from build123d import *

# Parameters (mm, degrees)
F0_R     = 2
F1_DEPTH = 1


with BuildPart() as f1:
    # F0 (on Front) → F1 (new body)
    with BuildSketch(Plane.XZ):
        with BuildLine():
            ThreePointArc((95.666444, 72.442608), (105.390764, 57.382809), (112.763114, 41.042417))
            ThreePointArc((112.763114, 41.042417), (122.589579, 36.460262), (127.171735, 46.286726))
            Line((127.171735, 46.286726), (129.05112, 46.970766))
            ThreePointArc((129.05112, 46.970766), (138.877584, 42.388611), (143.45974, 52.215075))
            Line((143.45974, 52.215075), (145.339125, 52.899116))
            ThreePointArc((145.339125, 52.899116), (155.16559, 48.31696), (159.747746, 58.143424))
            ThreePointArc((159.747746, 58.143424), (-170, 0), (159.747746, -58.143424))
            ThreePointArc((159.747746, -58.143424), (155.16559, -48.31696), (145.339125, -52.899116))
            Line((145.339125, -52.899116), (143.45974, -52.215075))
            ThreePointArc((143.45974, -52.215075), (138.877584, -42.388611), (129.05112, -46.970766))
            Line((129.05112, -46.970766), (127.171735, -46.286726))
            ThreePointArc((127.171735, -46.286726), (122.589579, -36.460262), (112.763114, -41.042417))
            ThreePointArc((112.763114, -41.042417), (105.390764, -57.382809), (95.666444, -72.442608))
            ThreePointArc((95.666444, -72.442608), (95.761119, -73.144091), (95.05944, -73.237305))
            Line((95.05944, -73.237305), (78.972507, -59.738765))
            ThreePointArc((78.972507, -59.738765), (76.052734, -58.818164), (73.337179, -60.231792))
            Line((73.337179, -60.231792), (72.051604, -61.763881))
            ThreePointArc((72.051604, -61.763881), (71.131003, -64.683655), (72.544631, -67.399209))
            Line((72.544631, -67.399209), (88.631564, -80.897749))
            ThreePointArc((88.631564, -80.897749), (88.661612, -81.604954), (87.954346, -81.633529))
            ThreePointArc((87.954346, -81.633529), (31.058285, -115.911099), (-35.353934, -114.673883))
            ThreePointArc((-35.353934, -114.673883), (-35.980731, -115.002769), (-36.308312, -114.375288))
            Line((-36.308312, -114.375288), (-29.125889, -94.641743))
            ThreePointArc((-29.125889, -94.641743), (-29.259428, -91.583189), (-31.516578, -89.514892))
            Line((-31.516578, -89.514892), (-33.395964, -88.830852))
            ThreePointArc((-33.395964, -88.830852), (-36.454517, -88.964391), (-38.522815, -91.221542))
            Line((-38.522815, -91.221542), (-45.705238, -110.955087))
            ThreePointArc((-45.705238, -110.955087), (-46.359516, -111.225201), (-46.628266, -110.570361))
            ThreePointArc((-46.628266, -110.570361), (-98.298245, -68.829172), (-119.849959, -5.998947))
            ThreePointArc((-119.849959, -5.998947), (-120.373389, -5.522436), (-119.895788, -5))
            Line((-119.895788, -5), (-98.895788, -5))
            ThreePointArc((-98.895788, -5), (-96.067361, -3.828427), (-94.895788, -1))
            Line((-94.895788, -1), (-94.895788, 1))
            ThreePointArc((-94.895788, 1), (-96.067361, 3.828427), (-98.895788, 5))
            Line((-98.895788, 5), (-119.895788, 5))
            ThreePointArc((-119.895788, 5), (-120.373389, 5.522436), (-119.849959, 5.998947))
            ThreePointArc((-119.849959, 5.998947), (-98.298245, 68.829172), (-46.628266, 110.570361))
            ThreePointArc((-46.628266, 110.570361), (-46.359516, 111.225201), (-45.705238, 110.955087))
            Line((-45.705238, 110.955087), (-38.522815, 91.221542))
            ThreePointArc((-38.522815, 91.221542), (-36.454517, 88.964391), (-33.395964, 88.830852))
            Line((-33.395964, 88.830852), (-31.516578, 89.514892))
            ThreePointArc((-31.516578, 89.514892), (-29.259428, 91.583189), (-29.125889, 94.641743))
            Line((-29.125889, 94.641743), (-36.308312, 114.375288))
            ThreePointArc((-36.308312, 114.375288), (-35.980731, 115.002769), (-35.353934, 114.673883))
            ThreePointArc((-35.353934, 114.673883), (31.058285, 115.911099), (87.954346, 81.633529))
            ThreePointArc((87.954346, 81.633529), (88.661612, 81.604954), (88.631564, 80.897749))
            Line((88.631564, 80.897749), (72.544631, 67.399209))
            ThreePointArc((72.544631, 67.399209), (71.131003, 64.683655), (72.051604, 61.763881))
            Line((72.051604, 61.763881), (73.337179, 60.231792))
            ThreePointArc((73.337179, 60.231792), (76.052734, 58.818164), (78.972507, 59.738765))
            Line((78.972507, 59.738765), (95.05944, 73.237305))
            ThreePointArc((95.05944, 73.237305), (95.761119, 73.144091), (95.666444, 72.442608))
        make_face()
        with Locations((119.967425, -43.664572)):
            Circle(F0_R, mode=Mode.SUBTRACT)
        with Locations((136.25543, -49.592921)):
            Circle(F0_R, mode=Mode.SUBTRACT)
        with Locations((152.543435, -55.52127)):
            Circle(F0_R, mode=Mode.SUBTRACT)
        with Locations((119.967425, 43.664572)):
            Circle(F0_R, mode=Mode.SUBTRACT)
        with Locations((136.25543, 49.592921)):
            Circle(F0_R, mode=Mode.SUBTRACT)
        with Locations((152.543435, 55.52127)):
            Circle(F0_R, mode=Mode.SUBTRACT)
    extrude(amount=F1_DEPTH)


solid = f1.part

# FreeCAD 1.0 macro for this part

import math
import FreeCAD as App
import Part
import Sketcher
from FreeCAD import Vector
Q = App.Units.Quantity

doc = App.newDocument("Part")
body = doc.addObject("PartDesign::Body", "Body")

# Sketch on XZ plane
sketch1 = doc.addObject("Sketcher::SketchObject", "Sketch")
body.addObject(sketch1)
sketch1.AttachmentSupport = (doc.XZ_Plane, [""])
sketch1.MapMode = "FlatFace"
sketch1.addGeometry([
    Part.ArcOfCircle(Part.Circle(Vector(-0.000004, -0.000001, 0), Vector(0, 0, 1), 120.000004), math.radians(20), math.radians(37.134518)),  # 0
    Part.ArcOfCircle(Part.Circle(Vector(119.967424, 43.664572, 0), Vector(0, 0, 1), 7.666667), math.radians(-159.999994), math.radians(19.999992)),  # 1
    Part.LineSegment(Vector(127.171735, 46.286726, 0), Vector(129.05112, 46.970766, 0)),  # 2
    Part.ArcOfCircle(Part.Circle(Vector(136.25543, 49.592921, 0), Vector(0, 0, 1), 7.666667), math.radians(-159.999994), math.radians(19.999996)),  # 3
    Part.LineSegment(Vector(143.45974, 52.215075, 0), Vector(145.339125, 52.899116, 0)),  # 4
    Part.ArcOfCircle(Part.Circle(Vector(152.543435, 55.52127, 0), Vector(0, 0, 1), 7.666667), math.radians(-160.000002), math.radians(19.999994)),  # 5
    Part.ArcOfCircle(Part.Circle(Vector(0, 0, 0), Vector(0, 0, 1), 170), math.radians(20), math.radians(340)),  # 6
    Part.ArcOfCircle(Part.Circle(Vector(152.543435, -55.52127, 0), Vector(0, 0, 1), 7.666667), math.radians(-19.999994), math.radians(160.000002)),  # 7
    Part.LineSegment(Vector(145.339125, -52.899116, 0), Vector(143.45974, -52.215075, 0)),  # 8
    Part.ArcOfCircle(Part.Circle(Vector(136.25543, -49.592921, 0), Vector(0, 0, 1), 7.666667), math.radians(-19.999996), math.radians(159.999994)),  # 9
    Part.LineSegment(Vector(129.05112, -46.970766, 0), Vector(127.171735, -46.286726, 0)),  # 10
    Part.ArcOfCircle(Part.Circle(Vector(119.967424, -43.664572, 0), Vector(0, 0, 1), 7.666667), math.radians(-19.999992), math.radians(159.999994)),  # 11
    Part.ArcOfCircle(Part.Circle(Vector(-0.000004, 0.000001, 0), Vector(0, 0, 1), 120.000004), math.radians(-37.134518), math.radians(-20)),  # 12
    Part.ArcOfCircle(Part.Circle(Vector(95.363769, -72.840589, 0), Vector(0, 0, 1), 0.5), math.radians(-127.492567), math.radians(52.746071)),  # 13
    Part.LineSegment(Vector(95.05944, -73.237305, 0), Vector(78.972507, -59.738765, 0)),  # 14
    Part.ArcOfCircle(Part.Circle(Vector(76.401357, -62.802943, 0), Vector(0, 0, 1), 4), math.radians(50.000002), math.radians(139.999991)),  # 15
    Part.LineSegment(Vector(73.337179, -60.231792, 0), Vector(72.051604, -61.763881, 0)),  # 16
    Part.ArcOfCircle(Part.Circle(Vector(75.115782, -64.335031, 0), Vector(0, 0, 1), 4), math.radians(139.999999), math.radians(229.999994)),  # 17
    Part.LineSegment(Vector(72.544631, -67.399209, 0), Vector(88.631564, -80.897749, 0)),  # 18
    Part.ArcOfCircle(Part.Circle(Vector(88.293721, -81.266344, 0), Vector(0, 0, 1), 0.5), math.radians(-132.746056), math.radians(47.49261)),  # 19
    Part.ArcOfCircle(Part.Circle(Vector(-0.000001, 0.000003, 0), Vector(0, 0, 1), 120.000003), math.radians(-107.134518), math.radians(-42.865482)),  # 20
    Part.ArcOfCircle(Part.Circle(Vector(-35.831434, -114.525579, 0), Vector(0, 0, 1), 0.5), math.radians(162.50747), math.radians(342.745995)),  # 21
    Part.LineSegment(Vector(-36.308312, -114.375288, 0), Vector(-29.125889, -94.641743, 0)),  # 22
    Part.ArcOfCircle(Part.Circle(Vector(-32.884659, -93.273662, 0), Vector(0, 0, 1), 3.999999), math.radians(-20.000013), math.radians(69.999997)),  # 23
    Part.LineSegment(Vector(-31.516578, -89.514892, 0), Vector(-33.395964, -88.830852, 0)),  # 24
    Part.ArcOfCircle(Part.Circle(Vector(-34.764045, -92.589622, 0), Vector(0, 0, 1), 4), math.radians(69.999998), math.radians(160.000004)),  # 25
    Part.LineSegment(Vector(-38.522815, -91.221542, 0), Vector(-45.705238, -110.955087, 0)),  # 26
    Part.ArcOfCircle(Part.Circle(Vector(-46.167153, -110.763686, 0), Vector(0, 0, 1), 0.5), math.radians(157.253794), math.radians(337.492619)),  # 27
    Part.ArcOfCircle(Part.Circle(Vector(0.000002, 0.000002, 0), Vector(0, 0, 1), 120.000002), math.radians(-177.134519), math.radians(-112.865481)),  # 28
    Part.ArcOfCircle(Part.Circle(Vector(-119.873914, -5.499521, 0), Vector(0, 0, 1), 0.5), math.radians(92.507328), math.radians(272.746141)),  # 29
    Part.LineSegment(Vector(-119.895788, -5, 0), Vector(-98.895788, -5, 0)),  # 30
    Part.ArcOfCircle(Part.Circle(Vector(-98.895788, -1, 0), Vector(0, 0, 1), 4), math.radians(-89.999994), math.radians(-0.000006)),  # 31
    Part.LineSegment(Vector(-94.895788, -1, 0), Vector(-94.895788, 1, 0)),  # 32
    Part.ArcOfCircle(Part.Circle(Vector(-98.895788, 1, 0), Vector(0, 0, 1), 4), math.radians(0.000006), math.radians(89.999994)),  # 33
    Part.LineSegment(Vector(-98.895788, 5, 0), Vector(-119.895788, 5, 0)),  # 34
    Part.ArcOfCircle(Part.Circle(Vector(-119.873914, 5.499521, 0), Vector(0, 0, 1), 0.5), math.radians(87.253859), math.radians(267.492672)),  # 35
    Part.ArcOfCircle(Part.Circle(Vector(0.000002, -0.000002, 0), Vector(0, 0, 1), 120.000002), math.radians(112.865481), math.radians(177.134519)),  # 36
    Part.ArcOfCircle(Part.Circle(Vector(-46.167153, 110.763686, 0), Vector(0, 0, 1), 0.5), math.radians(22.507381), math.radians(202.746206)),  # 37
    Part.LineSegment(Vector(-45.705238, 110.955087, 0), Vector(-38.522815, 91.221542, 0)),  # 38
    Part.ArcOfCircle(Part.Circle(Vector(-34.764045, 92.589622, 0), Vector(0, 0, 1), 4), math.radians(-160.000004), math.radians(-69.999998)),  # 39
    Part.LineSegment(Vector(-33.395964, 88.830852, 0), Vector(-31.516578, 89.514892, 0)),  # 40
    Part.ArcOfCircle(Part.Circle(Vector(-32.884659, 93.273662, 0), Vector(0, 0, 1), 3.999999), math.radians(-69.999997), math.radians(20.000013)),  # 41
    Part.LineSegment(Vector(-29.125889, 94.641743, 0), Vector(-36.308312, 114.375288, 0)),  # 42
    Part.ArcOfCircle(Part.Circle(Vector(-35.831434, 114.525579, 0), Vector(0, 0, 1), 0.5), math.radians(17.254005), math.radians(197.49253)),  # 43
    Part.ArcOfCircle(Part.Circle(Vector(-0.000001, -0.000003, 0), Vector(0, 0, 1), 120.000003), math.radians(42.865482), math.radians(107.134518)),  # 44
    Part.ArcOfCircle(Part.Circle(Vector(88.293721, 81.266344, 0), Vector(0, 0, 1), 0.5), math.radians(-47.49261), math.radians(132.746056)),  # 45
    Part.LineSegment(Vector(88.631564, 80.897749, 0), Vector(72.544631, 67.399209, 0)),  # 46
    Part.ArcOfCircle(Part.Circle(Vector(75.115782, 64.335031, 0), Vector(0, 0, 1), 4), math.radians(130.000006), math.radians(220.000001)),  # 47
    Part.LineSegment(Vector(72.051604, 61.763881, 0), Vector(73.337179, 60.231792, 0)),  # 48
    Part.ArcOfCircle(Part.Circle(Vector(76.401357, 62.802943, 0), Vector(0, 0, 1), 4), math.radians(-139.999991), math.radians(-50.000002)),  # 49
    Part.LineSegment(Vector(78.972507, 59.738765, 0), Vector(95.05944, 73.237305, 0)),  # 50
    Part.ArcOfCircle(Part.Circle(Vector(95.363769, 72.840589, 0), Vector(0, 0, 1), 0.5), math.radians(-52.746071), math.radians(127.492567)),  # 51
    Part.Circle(Vector(119.967425, -43.664572, 0), Vector(0, 0, 1), 2),  # 52
    Part.Circle(Vector(136.25543, -49.592921, 0), Vector(0, 0, 1), 2),  # 53
    Part.Circle(Vector(152.543435, -55.52127, 0), Vector(0, 0, 1), 2),  # 54
    Part.Circle(Vector(119.967425, 43.664572, 0), Vector(0, 0, 1), 2),  # 55
    Part.Circle(Vector(136.25543, 49.592921, 0), Vector(0, 0, 1), 2),  # 56
    Part.Circle(Vector(152.543435, 55.52127, 0), Vector(0, 0, 1), 2),  # 57
], False)
sketch1.addConstraint([
    Sketcher.Constraint("Tangent", 0, 1, 1, 1),
    Sketcher.Constraint("Coincident", 1, 2, 2, 1),
    Sketcher.Constraint("Coincident", 2, 2, 3, 1),
    Sketcher.Constraint("Coincident", 3, 2, 4, 1),
    Sketcher.Constraint("Coincident", 4, 2, 5, 1),
    Sketcher.Constraint("Tangent", 5, 2, 6, 1),
    Sketcher.Constraint("Tangent", 6, 2, 7, 1),
    Sketcher.Constraint("Coincident", 7, 2, 8, 1),
    Sketcher.Constraint("Coincident", 8, 2, 9, 1),
    Sketcher.Constraint("Coincident", 9, 2, 10, 1),
    Sketcher.Constraint("Coincident", 10, 2, 11, 1),
    Sketcher.Constraint("Tangent", 11, 2, 12, 2),
    Sketcher.Constraint("Coincident", 12, 1, 13, 2),
    Sketcher.Constraint("Coincident", 13, 1, 14, 1),
    Sketcher.Constraint("Tangent", 14, 2, 15, 1),
    Sketcher.Constraint("Tangent", 15, 2, 16, 1),
    Sketcher.Constraint("Tangent", 16, 2, 17, 1),
    Sketcher.Constraint("Tangent", 17, 2, 18, 1),
    Sketcher.Constraint("Coincident", 18, 2, 19, 2),
    Sketcher.Constraint("Coincident", 19, 1, 20, 2),
    Sketcher.Constraint("Coincident", 20, 1, 21, 2),
    Sketcher.Constraint("Coincident", 21, 1, 22, 1),
    Sketcher.Constraint("Tangent", 22, 2, 23, 1),
    Sketcher.Constraint("Tangent", 23, 2, 24, 1),
    Sketcher.Constraint("Tangent", 24, 2, 25, 1),
    Sketcher.Constraint("Tangent", 25, 2, 26, 1),
    Sketcher.Constraint("Coincident", 26, 2, 27, 2),
    Sketcher.Constraint("Coincident", 27, 1, 28, 2),
    Sketcher.Constraint("Coincident", 28, 1, 29, 2),
    Sketcher.Constraint("Coincident", 29, 1, 30, 1),
    Sketcher.Constraint("Tangent", 30, 2, 31, 1),
    Sketcher.Constraint("Tangent", 31, 2, 32, 1),
    Sketcher.Constraint("Tangent", 32, 2, 33, 1),
    Sketcher.Constraint("Tangent", 33, 2, 34, 1),
    Sketcher.Constraint("Coincident", 34, 2, 35, 2),
    Sketcher.Constraint("Coincident", 35, 1, 36, 2),
    Sketcher.Constraint("Coincident", 36, 1, 37, 2),
    Sketcher.Constraint("Coincident", 37, 1, 38, 1),
    Sketcher.Constraint("Tangent", 38, 2, 39, 1),
    Sketcher.Constraint("Tangent", 39, 2, 40, 1),
    Sketcher.Constraint("Tangent", 40, 2, 41, 1),
    Sketcher.Constraint("Tangent", 41, 2, 42, 1),
    Sketcher.Constraint("Coincident", 42, 2, 43, 2),
    Sketcher.Constraint("Coincident", 43, 1, 44, 2),
    Sketcher.Constraint("Coincident", 44, 1, 45, 2),
    Sketcher.Constraint("Coincident", 45, 1, 46, 1),
    Sketcher.Constraint("Tangent", 46, 2, 47, 1),
    Sketcher.Constraint("Tangent", 47, 2, 48, 1),
    Sketcher.Constraint("Tangent", 48, 2, 49, 1),
    Sketcher.Constraint("Tangent", 49, 2, 50, 1),
    Sketcher.Constraint("Coincident", 50, 2, 51, 2),
    Sketcher.Constraint("Coincident", 51, 1, 0, 2),
    Sketcher.Constraint("Horizontal", 30),
    Sketcher.Constraint("Vertical", 32),
    Sketcher.Constraint("Horizontal", 34),
    Sketcher.Constraint("Coincident", 0, 3, -1, 1),
    Sketcher.Constraint("Coincident", 6, 3, -1, 1),
    Sketcher.Constraint("Coincident", 12, 3, -1, 1),
    Sketcher.Constraint("Coincident", 20, 3, -1, 1),
    Sketcher.Constraint("Coincident", 28, 3, -1, 1),
    Sketcher.Constraint("Coincident", 36, 3, -1, 1),
    Sketcher.Constraint("Coincident", 44, 3, -1, 1),
    Sketcher.Constraint("Coincident", 52, 3, 11, 3),
    Sketcher.Constraint("Coincident", 53, 3, 9, 3),
    Sketcher.Constraint("Coincident", 54, 3, 7, 3),
    Sketcher.Constraint("Coincident", 55, 3, 1, 3),
    Sketcher.Constraint("Coincident", 56, 3, 3, 3),
    Sketcher.Constraint("Coincident", 57, 3, 5, 3),
    Sketcher.Constraint("Equal", 1, 3),
    Sketcher.Constraint("Equal", 3, 5),
    Sketcher.Constraint("Equal", 5, 7),
    Sketcher.Constraint("Equal", 7, 9),
    Sketcher.Constraint("Equal", 9, 11),
    Sketcher.Constraint("Equal", 0, 12),
    Sketcher.Constraint("Equal", 15, 17),
    Sketcher.Constraint("Equal", 13, 19),
    Sketcher.Constraint("Equal", 12, 20),
    Sketcher.Constraint("Equal", 19, 21),
    Sketcher.Constraint("Equal", 17, 23),
    Sketcher.Constraint("Equal", 23, 25),
    Sketcher.Constraint("Equal", 21, 27),
    Sketcher.Constraint("Equal", 20, 28),
    Sketcher.Constraint("Equal", 27, 29),
    Sketcher.Constraint("Equal", 25, 31),
    Sketcher.Constraint("Equal", 31, 33),
    Sketcher.Constraint("Equal", 29, 35),
    Sketcher.Constraint("Equal", 28, 36),
    Sketcher.Constraint("Equal", 35, 37),
    Sketcher.Constraint("Equal", 33, 39),
    Sketcher.Constraint("Equal", 39, 41),
    Sketcher.Constraint("Equal", 37, 43),
    Sketcher.Constraint("Equal", 36, 44),
    Sketcher.Constraint("Equal", 43, 45),
    Sketcher.Constraint("Equal", 41, 47),
    Sketcher.Constraint("Equal", 47, 49),
    Sketcher.Constraint("Equal", 45, 51),
    Sketcher.Constraint("Equal", 52, 53),
    Sketcher.Constraint("Equal", 53, 54),
    Sketcher.Constraint("Equal", 54, 55),
    Sketcher.Constraint("Equal", 55, 56),
    Sketcher.Constraint("Equal", 56, 57),
    Sketcher.Constraint("Symmetric", 3, 3, 9, 3, -1),
    Sketcher.Constraint("Symmetric", 29, 3, 35, 3, -1),
    Sketcher.Constraint("Symmetric", 27, 3, 37, 3, -1),
    Sketcher.Constraint("Symmetric", 25, 3, 39, 3, -1),
    Sketcher.Constraint("Symmetric", 23, 3, 41, 3, -1),
    Sketcher.Constraint("Symmetric", 21, 3, 43, 3, -1),
    Sketcher.Constraint("Symmetric", 19, 3, 45, 3, -1),
    Sketcher.Constraint("Symmetric", 17, 3, 47, 3, -1),
    Sketcher.Constraint("Symmetric", 15, 3, 49, 3, -1),
    Sketcher.Constraint("Symmetric", 13, 3, 51, 3, -1),
    Sketcher.Constraint("Parallel", 2, 4),
    Sketcher.Constraint("Parallel", 8, 10),
    Sketcher.Constraint("Perpendicular", 14, 16),
    Sketcher.Constraint("Perpendicular", 16, 18),
    Sketcher.Constraint("Perpendicular", 10, 22),
    Sketcher.Constraint("Perpendicular", 22, 24),
    Sketcher.Constraint("Perpendicular", 24, 26),
    Sketcher.Constraint("Perpendicular", 4, 38),
    Sketcher.Constraint("Parallel", 38, 42),
    Sketcher.Constraint("Parallel", 46, 50),
    Sketcher.Constraint("Vertical", 5, 3, 7, 3),
    Sketcher.Constraint("Vertical", 1, 3, 11, 3),
    Sketcher.Constraint("Vertical", 4, 2, 7, 2),
    Sketcher.Constraint("Vertical", 2, 2, 9, 2),
    Sketcher.Constraint("Vertical", 29, 1, 34, 2),
    Sketcher.Constraint("Vertical", 26, 2, 37, 1),
    Sketcher.Constraint("Vertical", 18, 2, 45, 1),
    Sketcher.Constraint("Equal", 2, 4),
    Sketcher.Constraint("Equal", 10, 16),
    Sketcher.Constraint("Equal", 14, 18),
    Sketcher.Constraint("Equal", 18, 22),
    Sketcher.Constraint("Equal", 16, 24),
    Sketcher.Constraint("Equal", 22, 26),
    Sketcher.Constraint("Diameter", 52, Q("4 mm")),
    Sketcher.Constraint("Radius", 6, Q("170 mm")),
    Sketcher.Constraint("Radius", 15, Q("4 mm")),
    Sketcher.Constraint("Radius", 13, Q("0.5 mm")),
    Sketcher.Constraint("DistanceX", 30, 1, 30, 2, Q("21 mm")),
    Sketcher.Constraint("DistanceY", 32, 1, 32, 2, Q("2 mm")),
    Sketcher.Constraint("Angle", 2, Q("19.999995 deg")),
    Sketcher.Constraint("Angle", 14, Q("139.999999 deg")),
    Sketcher.Constraint("Distance", 2, Q("2 mm")),
    Sketcher.Constraint("Distance", 14, Q("21 mm")),
    Sketcher.Constraint("Radius", 0, Q("120.000004 mm")),
    Sketcher.Constraint("DistanceX", -1, 1, 3, 3, Q("136.25543 mm")),
    Sketcher.Constraint("DistanceY", -1, 1, 5, 3, Q("55.52127 mm")),
    Sketcher.Constraint("DistanceX", -1, 1, 13, 3, Q("95.363769 mm")),
    Sketcher.Constraint("DistanceY", 13, 3, -1, 1, Q("72.840589 mm")),
    Sketcher.Constraint("DistanceX", -1, 1, 17, 3, Q("75.115782 mm")),
    Sketcher.Constraint("DistanceX", -1, 1, 19, 3, Q("88.293721 mm")),
    Sketcher.Constraint("DistanceY", 21, 3, -1, 1, Q("114.525579 mm")),
    Sketcher.Constraint("DistanceX", 23, 3, -1, 1, Q("32.884659 mm")),
    Sketcher.Constraint("DistanceY", 23, 3, -1, 1, Q("93.273662 mm")),
    Sketcher.Constraint("DistanceY", 29, 3, -1, 1, Q("5.499521 mm")),
    Sketcher.Constraint("DistanceX", 31, 3, -1, 1, Q("98.895788 mm")),
    Sketcher.Constraint("DistanceX", -1, 1, 2, 2, Q("129.05112 mm")),
    Sketcher.Constraint("DistanceX", -1, 1, 3, 2, Q("143.45974 mm")),
    Sketcher.Constraint("DistanceX", -1, 1, 1, 3, Q("119.967424 mm")),
    Sketcher.Constraint("DistanceX", 27, 3, -1, 1, Q("46.167153 mm")),
])
pad1 = doc.addObject("PartDesign::Pad", "Pad")
body.addObject(pad1)
pad1.Profile = sketch1
pad1.Length = 1

doc.recompute()
